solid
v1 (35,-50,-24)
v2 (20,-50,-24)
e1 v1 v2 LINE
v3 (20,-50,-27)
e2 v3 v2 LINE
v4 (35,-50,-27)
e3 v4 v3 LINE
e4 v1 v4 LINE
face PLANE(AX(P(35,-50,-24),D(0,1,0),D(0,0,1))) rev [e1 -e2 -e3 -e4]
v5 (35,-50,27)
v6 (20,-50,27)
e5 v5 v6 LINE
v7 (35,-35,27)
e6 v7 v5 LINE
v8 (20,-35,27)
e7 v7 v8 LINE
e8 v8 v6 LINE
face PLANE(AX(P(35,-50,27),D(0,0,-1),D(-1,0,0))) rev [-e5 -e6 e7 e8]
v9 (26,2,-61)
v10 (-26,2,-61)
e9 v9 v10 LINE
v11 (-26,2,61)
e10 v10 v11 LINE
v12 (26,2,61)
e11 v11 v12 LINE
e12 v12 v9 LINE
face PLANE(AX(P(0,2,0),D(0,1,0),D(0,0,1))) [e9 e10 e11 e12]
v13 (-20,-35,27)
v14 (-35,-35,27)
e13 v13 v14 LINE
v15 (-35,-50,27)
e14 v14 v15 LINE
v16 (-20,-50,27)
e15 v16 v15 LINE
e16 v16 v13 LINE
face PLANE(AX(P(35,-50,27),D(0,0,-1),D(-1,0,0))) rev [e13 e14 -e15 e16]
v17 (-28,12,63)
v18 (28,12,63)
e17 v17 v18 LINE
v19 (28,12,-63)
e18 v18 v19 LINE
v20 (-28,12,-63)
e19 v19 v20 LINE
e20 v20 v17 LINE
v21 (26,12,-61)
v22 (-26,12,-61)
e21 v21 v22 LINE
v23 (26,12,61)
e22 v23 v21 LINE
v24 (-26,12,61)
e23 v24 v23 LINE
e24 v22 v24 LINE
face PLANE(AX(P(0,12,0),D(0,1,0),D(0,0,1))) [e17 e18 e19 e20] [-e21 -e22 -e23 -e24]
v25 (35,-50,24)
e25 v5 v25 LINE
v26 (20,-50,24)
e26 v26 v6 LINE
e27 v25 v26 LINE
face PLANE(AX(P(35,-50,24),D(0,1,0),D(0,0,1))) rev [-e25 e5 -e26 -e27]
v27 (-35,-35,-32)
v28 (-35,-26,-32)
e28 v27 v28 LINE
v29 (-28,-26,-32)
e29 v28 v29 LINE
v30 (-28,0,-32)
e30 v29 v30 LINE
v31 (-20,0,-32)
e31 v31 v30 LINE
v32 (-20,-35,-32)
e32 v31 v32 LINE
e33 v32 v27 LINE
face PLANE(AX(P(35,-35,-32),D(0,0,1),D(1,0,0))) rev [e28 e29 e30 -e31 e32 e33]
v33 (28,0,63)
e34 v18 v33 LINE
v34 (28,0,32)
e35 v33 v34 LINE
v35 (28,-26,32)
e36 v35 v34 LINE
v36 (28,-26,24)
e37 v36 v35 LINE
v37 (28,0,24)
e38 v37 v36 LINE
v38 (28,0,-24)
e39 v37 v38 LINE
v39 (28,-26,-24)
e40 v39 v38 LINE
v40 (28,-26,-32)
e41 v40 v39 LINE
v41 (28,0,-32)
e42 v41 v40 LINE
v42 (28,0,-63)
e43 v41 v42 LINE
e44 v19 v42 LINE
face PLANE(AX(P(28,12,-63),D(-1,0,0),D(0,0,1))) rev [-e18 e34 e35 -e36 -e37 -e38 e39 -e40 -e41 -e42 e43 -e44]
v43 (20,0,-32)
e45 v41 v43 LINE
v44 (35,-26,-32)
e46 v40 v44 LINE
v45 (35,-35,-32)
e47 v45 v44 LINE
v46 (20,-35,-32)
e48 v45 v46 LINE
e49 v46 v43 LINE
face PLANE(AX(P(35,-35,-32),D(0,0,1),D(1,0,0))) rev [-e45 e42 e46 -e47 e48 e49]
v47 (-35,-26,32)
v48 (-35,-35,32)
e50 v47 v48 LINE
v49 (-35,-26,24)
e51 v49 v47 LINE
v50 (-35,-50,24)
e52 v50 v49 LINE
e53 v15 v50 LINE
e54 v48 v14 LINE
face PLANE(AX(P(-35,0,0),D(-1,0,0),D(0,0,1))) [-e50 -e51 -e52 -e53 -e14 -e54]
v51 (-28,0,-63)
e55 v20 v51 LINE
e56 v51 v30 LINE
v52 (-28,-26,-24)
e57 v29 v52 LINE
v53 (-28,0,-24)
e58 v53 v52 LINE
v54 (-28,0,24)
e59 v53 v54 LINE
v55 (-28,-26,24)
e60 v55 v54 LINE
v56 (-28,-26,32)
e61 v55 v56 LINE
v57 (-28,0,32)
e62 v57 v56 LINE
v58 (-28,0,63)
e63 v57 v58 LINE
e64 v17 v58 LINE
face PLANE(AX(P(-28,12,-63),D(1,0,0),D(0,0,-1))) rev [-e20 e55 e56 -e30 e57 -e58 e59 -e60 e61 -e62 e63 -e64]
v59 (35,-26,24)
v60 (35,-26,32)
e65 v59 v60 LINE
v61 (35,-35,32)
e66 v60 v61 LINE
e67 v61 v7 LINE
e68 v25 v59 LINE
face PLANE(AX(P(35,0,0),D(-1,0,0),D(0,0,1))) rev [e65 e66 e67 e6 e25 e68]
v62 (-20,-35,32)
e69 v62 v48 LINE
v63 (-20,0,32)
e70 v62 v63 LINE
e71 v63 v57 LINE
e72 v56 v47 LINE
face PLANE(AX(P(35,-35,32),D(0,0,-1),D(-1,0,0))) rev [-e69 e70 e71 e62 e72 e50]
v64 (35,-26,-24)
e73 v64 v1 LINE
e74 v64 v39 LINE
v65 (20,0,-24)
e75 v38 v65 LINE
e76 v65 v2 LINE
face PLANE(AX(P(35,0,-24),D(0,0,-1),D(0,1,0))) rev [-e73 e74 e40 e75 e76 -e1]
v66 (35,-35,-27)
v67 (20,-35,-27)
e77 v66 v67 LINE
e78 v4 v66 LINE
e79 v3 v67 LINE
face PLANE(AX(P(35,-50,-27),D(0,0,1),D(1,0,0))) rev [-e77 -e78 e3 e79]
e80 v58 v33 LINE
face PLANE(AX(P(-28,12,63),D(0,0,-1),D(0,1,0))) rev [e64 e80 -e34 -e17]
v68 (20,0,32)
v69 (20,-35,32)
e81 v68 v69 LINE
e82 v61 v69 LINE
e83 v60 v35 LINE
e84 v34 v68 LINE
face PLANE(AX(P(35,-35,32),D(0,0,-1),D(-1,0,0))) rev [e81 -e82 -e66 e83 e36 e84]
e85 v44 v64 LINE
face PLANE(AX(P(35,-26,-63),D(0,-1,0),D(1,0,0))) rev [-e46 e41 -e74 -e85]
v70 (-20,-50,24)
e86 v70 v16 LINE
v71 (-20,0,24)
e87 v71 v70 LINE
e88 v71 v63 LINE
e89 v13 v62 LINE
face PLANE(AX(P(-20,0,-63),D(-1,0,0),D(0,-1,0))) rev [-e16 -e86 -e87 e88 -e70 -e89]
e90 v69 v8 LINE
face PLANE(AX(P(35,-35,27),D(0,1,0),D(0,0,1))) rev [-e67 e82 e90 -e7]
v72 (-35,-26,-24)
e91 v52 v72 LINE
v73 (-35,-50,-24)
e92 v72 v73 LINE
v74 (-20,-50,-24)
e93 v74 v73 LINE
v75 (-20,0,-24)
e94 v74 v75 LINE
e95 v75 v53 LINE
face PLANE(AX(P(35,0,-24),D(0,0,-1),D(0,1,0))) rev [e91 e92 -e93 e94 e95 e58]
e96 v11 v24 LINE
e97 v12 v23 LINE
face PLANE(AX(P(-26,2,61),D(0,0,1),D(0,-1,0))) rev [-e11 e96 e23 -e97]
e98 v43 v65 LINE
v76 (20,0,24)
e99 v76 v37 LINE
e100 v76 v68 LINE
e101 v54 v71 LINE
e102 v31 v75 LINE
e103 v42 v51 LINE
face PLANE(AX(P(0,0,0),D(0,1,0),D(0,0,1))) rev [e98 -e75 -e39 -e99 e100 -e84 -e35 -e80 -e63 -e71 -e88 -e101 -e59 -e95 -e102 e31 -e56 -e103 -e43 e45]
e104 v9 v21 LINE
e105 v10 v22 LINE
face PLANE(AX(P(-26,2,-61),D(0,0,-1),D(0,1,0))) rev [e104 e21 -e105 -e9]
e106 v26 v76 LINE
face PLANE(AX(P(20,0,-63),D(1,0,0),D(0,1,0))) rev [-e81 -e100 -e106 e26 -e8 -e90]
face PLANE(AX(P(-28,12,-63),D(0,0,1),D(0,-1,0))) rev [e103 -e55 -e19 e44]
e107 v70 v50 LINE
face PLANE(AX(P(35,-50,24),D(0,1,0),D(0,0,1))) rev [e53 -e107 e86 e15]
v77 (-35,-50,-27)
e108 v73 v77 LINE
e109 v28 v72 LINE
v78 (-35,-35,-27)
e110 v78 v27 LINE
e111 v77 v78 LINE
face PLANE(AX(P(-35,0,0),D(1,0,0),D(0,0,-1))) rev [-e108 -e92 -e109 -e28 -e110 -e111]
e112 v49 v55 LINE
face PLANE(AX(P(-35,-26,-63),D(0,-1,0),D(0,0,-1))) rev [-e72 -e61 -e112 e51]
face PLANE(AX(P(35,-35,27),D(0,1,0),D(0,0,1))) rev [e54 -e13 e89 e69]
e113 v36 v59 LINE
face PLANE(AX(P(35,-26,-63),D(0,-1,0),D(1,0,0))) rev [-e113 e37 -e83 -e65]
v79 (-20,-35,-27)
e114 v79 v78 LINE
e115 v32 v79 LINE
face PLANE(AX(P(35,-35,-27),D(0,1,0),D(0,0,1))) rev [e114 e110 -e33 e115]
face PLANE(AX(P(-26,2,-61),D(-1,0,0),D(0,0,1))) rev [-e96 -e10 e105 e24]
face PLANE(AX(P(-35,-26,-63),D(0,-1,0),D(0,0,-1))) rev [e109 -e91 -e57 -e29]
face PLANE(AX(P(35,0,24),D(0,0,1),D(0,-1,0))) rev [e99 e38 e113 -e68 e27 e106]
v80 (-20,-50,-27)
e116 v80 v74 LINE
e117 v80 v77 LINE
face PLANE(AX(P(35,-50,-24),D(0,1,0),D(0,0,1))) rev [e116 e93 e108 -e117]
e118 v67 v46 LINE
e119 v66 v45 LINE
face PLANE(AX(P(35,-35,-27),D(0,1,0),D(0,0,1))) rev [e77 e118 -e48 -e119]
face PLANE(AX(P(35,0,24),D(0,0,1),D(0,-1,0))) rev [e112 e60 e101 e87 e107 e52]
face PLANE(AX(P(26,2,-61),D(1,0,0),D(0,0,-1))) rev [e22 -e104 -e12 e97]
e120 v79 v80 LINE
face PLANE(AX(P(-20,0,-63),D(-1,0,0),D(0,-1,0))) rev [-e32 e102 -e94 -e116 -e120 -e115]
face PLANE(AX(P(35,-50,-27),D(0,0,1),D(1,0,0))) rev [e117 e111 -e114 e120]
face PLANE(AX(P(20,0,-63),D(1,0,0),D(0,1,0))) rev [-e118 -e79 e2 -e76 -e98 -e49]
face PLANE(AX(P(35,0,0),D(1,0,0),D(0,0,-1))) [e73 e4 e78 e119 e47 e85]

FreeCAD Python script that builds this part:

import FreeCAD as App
import Part
import Sketcher
Q = App.Units.Quantity

doc = App.newDocument("Part")
body = doc.addObject("PartDesign::Body", "Body")

sketch1 = body.newObject("Sketcher::SketchObject", "Sketch")
sketch1.AttachmentSupport = (doc.getObject("YZ_Plane"), [""])
sketch1.MapMode = "FlatFace"
sketch1.addGeometry([
    Part.LineSegment(App.Vector(0, -24, 0), App.Vector(-50, -24, 0)),
    Part.LineSegment(App.Vector(-50, -24, 0), App.Vector(-50, -27, 0)),
    Part.LineSegment(App.Vector(-50, -27, 0), App.Vector(-35, -27, 0)),
    Part.LineSegment(App.Vector(-35, -27, 0), App.Vector(-35, -32, 0)),
    Part.LineSegment(App.Vector(-35, -32, 0), App.Vector(0, -32, 0)),
    Part.LineSegment(App.Vector(0, -32, 0), App.Vector(0, -24, 0)),
], False)
sketch1.addConstraint([
    Sketcher.Constraint("Coincident", 0, 2, 1, 1),
    Sketcher.Constraint("Coincident", 1, 2, 2, 1),
    Sketcher.Constraint("Coincident", 2, 2, 3, 1),
    Sketcher.Constraint("Coincident", 3, 2, 4, 1),
    Sketcher.Constraint("Coincident", 4, 2, 5, 1),
    Sketcher.Constraint("Coincident", 5, 2, 0, 1),
    Sketcher.Constraint("Horizontal", 0),
    Sketcher.Constraint("Vertical", 1),
    Sketcher.Constraint("Horizontal", 2),
    Sketcher.Constraint("Vertical", 3),
    Sketcher.Constraint("Horizontal", 4),
    Sketcher.Constraint("Vertical", 5),
    Sketcher.Constraint("PointOnObject", 4, 2, -2),
    Sketcher.Constraint("DistanceX", 0, 2, 0, 1, Q("50 mm")),
    Sketcher.Constraint("DistanceX", 2, 1, 2, 2, Q("15 mm")),
    Sketcher.Constraint("DistanceY", 1, 2, 1, 1, Q("3 mm")),
    Sketcher.Constraint("DistanceY", 3, 2, 3, 1, Q("5 mm")),
    Sketcher.Constraint("DistanceY", 0, 2, -1, 1, Q("24 mm")),
])
pad1 = body.newObject("PartDesign::Pad", "Pad")
pad1.Profile = sketch1
pad1.Length = 70
pad1.Midplane = True
body2 = doc.addObject("PartDesign::Body", "Body001")

sketch2 = body2.newObject("Sketcher::SketchObject", "Sketch001")
sketch2.AttachmentSupport = (doc.getObject("YZ_Plane001"), [""])
sketch2.MapMode = "FlatFace"
sketch2.addGeometry([
    Part.LineSegment(App.Vector(0, 24, 0), App.Vector(0, 32, 0)),
    Part.LineSegment(App.Vector(0, 32, 0), App.Vector(-35, 32, 0)),
    Part.LineSegment(App.Vector(-35, 32, 0), App.Vector(-35, 27, 0)),
    Part.LineSegment(App.Vector(-35, 27, 0), App.Vector(-50, 27, 0)),
    Part.LineSegment(App.Vector(-50, 27, 0), App.Vector(-50, 24, 0)),
    Part.LineSegment(App.Vector(-50, 24, 0), App.Vector(0, 24, 0)),
], False)
sketch2.addConstraint([
    Sketcher.Constraint("Coincident", 0, 2, 1, 1),
    Sketcher.Constraint("Coincident", 1, 2, 2, 1),
    Sketcher.Constraint("Coincident", 2, 2, 3, 1),
    Sketcher.Constraint("Coincident", 3, 2, 4, 1),
    Sketcher.Constraint("Coincident", 4, 2, 5, 1),
    Sketcher.Constraint("Coincident", 5, 2, 0, 1),
    Sketcher.Constraint("Vertical", 0),
    Sketcher.Constraint("Horizontal", 1),
    Sketcher.Constraint("Vertical", 2),
    Sketcher.Constraint("Horizontal", 3),
    Sketcher.Constraint("Vertical", 4),
    Sketcher.Constraint("Horizontal", 5),
    Sketcher.Constraint("PointOnObject", 0, 2, -2),
    Sketcher.Constraint("DistanceX", 1, 2, 1, 1, Q("35 mm")),
    Sketcher.Constraint("DistanceX", 3, 2, 3, 1, Q("15 mm")),
    Sketcher.Constraint("DistanceY", 0, 1, 0, 2, Q("8 mm")),
    Sketcher.Constraint("DistanceY", 2, 2, 2, 1, Q("5 mm")),
    Sketcher.Constraint("DistanceY", -1, 1, 0, 2, Q("32 mm")),
])
pad2 = body2.newObject("PartDesign::Pad", "Pad001")
pad2.Profile = sketch2
pad2.Length = 70
pad2.Midplane = True
body.AllowCompound = True
doc.recompute()

boolean = body.newObject("PartDesign::Boolean", "Boolean")
boolean.Type = "Fuse"
boolean.addObjects([body2])

sketch3 = body.newObject("Sketcher::SketchObject", "Sketch002")
sketch3.AttachmentSupport = (doc.getObject("XZ_Plane"), [""])
sketch3.MapMode = "FlatFace"
sketch3.addGeometry([
    Part.LineSegment(App.Vector(-28, -63, 0), App.Vector(-28, 63, 0)),
    Part.LineSegment(App.Vector(-28, 63, 0), App.Vector(28, 63, 0)),
    Part.LineSegment(App.Vector(28, 63, 0), App.Vector(28, -63, 0)),
    Part.LineSegment(App.Vector(28, -63, 0), App.Vector(-28, -63, 0)),
], False)
sketch3.addConstraint([
    Sketcher.Constraint("Coincident", 0, 2, 1, 1),
    Sketcher.Constraint("Coincident", 1, 2, 2, 1),
    Sketcher.Constraint("Coincident", 2, 2, 3, 1),
    Sketcher.Constraint("Coincident", 3, 2, 0, 1),
    Sketcher.Constraint("Vertical", 0),
    Sketcher.Constraint("Horizontal", 1),
    Sketcher.Constraint("Vertical", 2),
    Sketcher.Constraint("Horizontal", 3),
    Sketcher.Constraint("Symmetric", 0, 2, 2, 2, -1, 1),
    Sketcher.Constraint("DistanceX", 1, 1, 1, 2, Q("56 mm")),
    Sketcher.Constraint("DistanceY", 0, 1, 0, 2, Q("126 mm")),
])
pad3 = body.newObject("PartDesign::Pad", "Pad002")
pad3.Profile = sketch3
pad3.Length = 12
pad3.Reversed = True

sketch4 = body.newObject("Sketcher::SketchObject", "Sketch003")
sketch4.AttachmentSupport = (doc.getObject("XZ_Plane"), [""])
sketch4.MapMode = "FlatFace"
sketch4.AttachmentOffset = App.Placement(App.Vector(0, 0, -12), App.Rotation())
sketch4.addGeometry([
    Part.LineSegment(App.Vector(-26, -61, 0), App.Vector(-26, 61, 0)),
    Part.LineSegment(App.Vector(-26, 61, 0), App.Vector(26, 61, 0)),
    Part.LineSegment(App.Vector(26, 61, 0), App.Vector(26, -61, 0)),
    Part.LineSegment(App.Vector(26, -61, 0), App.Vector(-26, -61, 0)),
], False)
sketch4.addConstraint([
    Sketcher.Constraint("Coincident", 0, 2, 1, 1),
    Sketcher.Constraint("Coincident", 1, 2, 2, 1),
    Sketcher.Constraint("Coincident", 2, 2, 3, 1),
    Sketcher.Constraint("Coincident", 3, 2, 0, 1),
    Sketcher.Constraint("Vertical", 0),
    Sketcher.Constraint("Horizontal", 1),
    Sketcher.Constraint("Vertical", 2),
    Sketcher.Constraint("Horizontal", 3),
    Sketcher.Constraint("Symmetric", 0, 2, 2, 2, -1, 1),
    Sketcher.Constraint("DistanceX", 1, 1, 1, 2, Q("52 mm")),
    Sketcher.Constraint("DistanceY", 0, 1, 0, 2, Q("122 mm")),
])
pocket1 = body.newObject("PartDesign::Pocket", "Pocket")
pocket1.Profile = sketch4
pocket1.Length = 10
pocket1.Reversed = True

sketch5 = body.newObject("Sketcher::SketchObject", "Sketch004")
sketch5.AttachmentSupport = (doc.getObject("XY_Plane"), [""])
sketch5.MapMode = "FlatFace"
sketch5.AttachmentOffset = App.Placement(App.Vector(0, 0, 32), App.Rotation())
sketch5.addGeometry([
    Part.LineSegment(App.Vector(-20, 0, 0), App.Vector(-20, -50, 0)),
    Part.LineSegment(App.Vector(-20, -50, 0), App.Vector(20, -50, 0)),
    Part.LineSegment(App.Vector(20, -50, 0), App.Vector(20, 0, 0)),
    Part.LineSegment(App.Vector(20, 0, 0), App.Vector(-20, 0, 0)),
    Part.LineSegment(App.Vector(-35, 0, 0), App.Vector(-35, -26, 0)),
    Part.LineSegment(App.Vector(-35, -26, 0), App.Vector(-28, -26, 0)),
    Part.LineSegment(App.Vector(-28, -26, 0), App.Vector(-28, 0, 0)),
    Part.LineSegment(App.Vector(-28, 0, 0), App.Vector(-35, 0, 0)),
    Part.LineSegment(App.Vector(28, 0, 0), App.Vector(28, -26, 0)),
    Part.LineSegment(App.Vector(28, -26, 0), App.Vector(35, -26, 0)),
    Part.LineSegment(App.Vector(35, -26, 0), App.Vector(35, 0, 0)),
    Part.LineSegment(App.Vector(35, 0, 0), App.Vector(28, 0, 0)),
], False)
sketch5.addConstraint([
    Sketcher.Constraint("Coincident", 0, 2, 1, 1),
    Sketcher.Constraint("Coincident", 1, 2, 2, 1),
    Sketcher.Constraint("Coincident", 2, 2, 3, 1),
    Sketcher.Constraint("Coincident", 3, 2, 0, 1),
    Sketcher.Constraint("Coincident", 4, 2, 5, 1),
    Sketcher.Constraint("Coincident", 5, 2, 6, 1),
    Sketcher.Constraint("Coincident", 6, 2, 7, 1),
    Sketcher.Constraint("Coincident", 7, 2, 4, 1),
    Sketcher.Constraint("Coincident", 8, 2, 9, 1),
    Sketcher.Constraint("Coincident", 9, 2, 10, 1),
    Sketcher.Constraint("Coincident", 10, 2, 11, 1),
    Sketcher.Constraint("Coincident", 11, 2, 8, 1),
    Sketcher.Constraint("Vertical", 0),
    Sketcher.Constraint("Horizontal", 1),
    Sketcher.Constraint("Vertical", 2),
    Sketcher.Constraint("Horizontal", 3),
    Sketcher.Constraint("Vertical", 4),
    Sketcher.Constraint("Horizontal", 5),
    Sketcher.Constraint("Vertical", 6),
    Sketcher.Constraint("Horizontal", 7),
    Sketcher.Constraint("Vertical", 8),
    Sketcher.Constraint("Horizontal", 9),
    Sketcher.Constraint("Vertical", 10),
    Sketcher.Constraint("Horizontal", 11),
    Sketcher.Constraint("Symmetric", 2, 2, 3, 2, -1, 1),
    Sketcher.Constraint("Symmetric", 7, 2, 10, 2, -1, 1),
    Sketcher.Constraint("Symmetric", 5, 2, 8, 2, -2),
    Sketcher.Constraint("PointOnObject", 6, 2, -1),
    Sketcher.Constraint("DistanceX", 1, 1, 1, 2, Q("40 mm")),
    Sketcher.Constraint("DistanceX", 5, 1, 5, 2, Q("7 mm")),
    Sketcher.Constraint("DistanceY", 0, 2, 0, 1, Q("50 mm")),
    Sketcher.Constraint("DistanceY", 4, 2, 4, 1, Q("26 mm")),
    Sketcher.Constraint("DistanceX", 4, 2, -1, 1, Q("35 mm")),
])
pocket2 = body.newObject("PartDesign::Pocket", "Pocket001")
pocket2.Profile = sketch5
pocket2.Type = "ThroughAll"
pocket2.Midplane = True

doc.recompute()
